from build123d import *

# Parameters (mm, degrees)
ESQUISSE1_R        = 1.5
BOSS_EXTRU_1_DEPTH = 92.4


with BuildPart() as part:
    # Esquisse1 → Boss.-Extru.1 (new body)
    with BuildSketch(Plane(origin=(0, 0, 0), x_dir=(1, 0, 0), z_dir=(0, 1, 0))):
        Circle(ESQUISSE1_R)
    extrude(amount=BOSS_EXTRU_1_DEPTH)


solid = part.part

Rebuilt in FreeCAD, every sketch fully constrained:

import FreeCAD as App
import Part
import Sketcher
from FreeCAD import Vector

doc = App.newDocument("Part")
params = doc.addObject("Spreadsheet::Sheet", "Params")
for row, (alias, value) in enumerate([
    ("sketch1_diameter", "3 mm"),
    ("pad1_length", "92.4 mm"),
], start=1):
    params.set(f"A{row}", alias)
    params.set(f"B{row}", "=" + value)
    params.setAlias(f"B{row}", alias)

body = doc.addObject("PartDesign::Body", "Body")

sketch1 = body.newObject("Sketcher::SketchObject", "Sketch")
sketch1.AttachmentSupport = (doc.getObject("XZ_Plane"), [""])
sketch1.MapMode = "FlatFace"
sketch1.addGeometry(Part.Circle(Vector(0, 0, 0), Vector(0, 0, 1), 1.5), False)
sketch1.addConstraint(Sketcher.Constraint("Coincident", 0, 3, -1, 1))
sketch1.addConstraint(Sketcher.Constraint("Diameter", 0, 3.0))
sketch1.setExpression("Constraints[1]", "Params.sketch1_diameter")
pad1 = body.newObject("PartDesign::Pad", "Pad")
pad1.Profile = sketch1
pad1.setExpression("Length", "Params.pad1_length")
pad1.Reversed = True

doc.recompute()
